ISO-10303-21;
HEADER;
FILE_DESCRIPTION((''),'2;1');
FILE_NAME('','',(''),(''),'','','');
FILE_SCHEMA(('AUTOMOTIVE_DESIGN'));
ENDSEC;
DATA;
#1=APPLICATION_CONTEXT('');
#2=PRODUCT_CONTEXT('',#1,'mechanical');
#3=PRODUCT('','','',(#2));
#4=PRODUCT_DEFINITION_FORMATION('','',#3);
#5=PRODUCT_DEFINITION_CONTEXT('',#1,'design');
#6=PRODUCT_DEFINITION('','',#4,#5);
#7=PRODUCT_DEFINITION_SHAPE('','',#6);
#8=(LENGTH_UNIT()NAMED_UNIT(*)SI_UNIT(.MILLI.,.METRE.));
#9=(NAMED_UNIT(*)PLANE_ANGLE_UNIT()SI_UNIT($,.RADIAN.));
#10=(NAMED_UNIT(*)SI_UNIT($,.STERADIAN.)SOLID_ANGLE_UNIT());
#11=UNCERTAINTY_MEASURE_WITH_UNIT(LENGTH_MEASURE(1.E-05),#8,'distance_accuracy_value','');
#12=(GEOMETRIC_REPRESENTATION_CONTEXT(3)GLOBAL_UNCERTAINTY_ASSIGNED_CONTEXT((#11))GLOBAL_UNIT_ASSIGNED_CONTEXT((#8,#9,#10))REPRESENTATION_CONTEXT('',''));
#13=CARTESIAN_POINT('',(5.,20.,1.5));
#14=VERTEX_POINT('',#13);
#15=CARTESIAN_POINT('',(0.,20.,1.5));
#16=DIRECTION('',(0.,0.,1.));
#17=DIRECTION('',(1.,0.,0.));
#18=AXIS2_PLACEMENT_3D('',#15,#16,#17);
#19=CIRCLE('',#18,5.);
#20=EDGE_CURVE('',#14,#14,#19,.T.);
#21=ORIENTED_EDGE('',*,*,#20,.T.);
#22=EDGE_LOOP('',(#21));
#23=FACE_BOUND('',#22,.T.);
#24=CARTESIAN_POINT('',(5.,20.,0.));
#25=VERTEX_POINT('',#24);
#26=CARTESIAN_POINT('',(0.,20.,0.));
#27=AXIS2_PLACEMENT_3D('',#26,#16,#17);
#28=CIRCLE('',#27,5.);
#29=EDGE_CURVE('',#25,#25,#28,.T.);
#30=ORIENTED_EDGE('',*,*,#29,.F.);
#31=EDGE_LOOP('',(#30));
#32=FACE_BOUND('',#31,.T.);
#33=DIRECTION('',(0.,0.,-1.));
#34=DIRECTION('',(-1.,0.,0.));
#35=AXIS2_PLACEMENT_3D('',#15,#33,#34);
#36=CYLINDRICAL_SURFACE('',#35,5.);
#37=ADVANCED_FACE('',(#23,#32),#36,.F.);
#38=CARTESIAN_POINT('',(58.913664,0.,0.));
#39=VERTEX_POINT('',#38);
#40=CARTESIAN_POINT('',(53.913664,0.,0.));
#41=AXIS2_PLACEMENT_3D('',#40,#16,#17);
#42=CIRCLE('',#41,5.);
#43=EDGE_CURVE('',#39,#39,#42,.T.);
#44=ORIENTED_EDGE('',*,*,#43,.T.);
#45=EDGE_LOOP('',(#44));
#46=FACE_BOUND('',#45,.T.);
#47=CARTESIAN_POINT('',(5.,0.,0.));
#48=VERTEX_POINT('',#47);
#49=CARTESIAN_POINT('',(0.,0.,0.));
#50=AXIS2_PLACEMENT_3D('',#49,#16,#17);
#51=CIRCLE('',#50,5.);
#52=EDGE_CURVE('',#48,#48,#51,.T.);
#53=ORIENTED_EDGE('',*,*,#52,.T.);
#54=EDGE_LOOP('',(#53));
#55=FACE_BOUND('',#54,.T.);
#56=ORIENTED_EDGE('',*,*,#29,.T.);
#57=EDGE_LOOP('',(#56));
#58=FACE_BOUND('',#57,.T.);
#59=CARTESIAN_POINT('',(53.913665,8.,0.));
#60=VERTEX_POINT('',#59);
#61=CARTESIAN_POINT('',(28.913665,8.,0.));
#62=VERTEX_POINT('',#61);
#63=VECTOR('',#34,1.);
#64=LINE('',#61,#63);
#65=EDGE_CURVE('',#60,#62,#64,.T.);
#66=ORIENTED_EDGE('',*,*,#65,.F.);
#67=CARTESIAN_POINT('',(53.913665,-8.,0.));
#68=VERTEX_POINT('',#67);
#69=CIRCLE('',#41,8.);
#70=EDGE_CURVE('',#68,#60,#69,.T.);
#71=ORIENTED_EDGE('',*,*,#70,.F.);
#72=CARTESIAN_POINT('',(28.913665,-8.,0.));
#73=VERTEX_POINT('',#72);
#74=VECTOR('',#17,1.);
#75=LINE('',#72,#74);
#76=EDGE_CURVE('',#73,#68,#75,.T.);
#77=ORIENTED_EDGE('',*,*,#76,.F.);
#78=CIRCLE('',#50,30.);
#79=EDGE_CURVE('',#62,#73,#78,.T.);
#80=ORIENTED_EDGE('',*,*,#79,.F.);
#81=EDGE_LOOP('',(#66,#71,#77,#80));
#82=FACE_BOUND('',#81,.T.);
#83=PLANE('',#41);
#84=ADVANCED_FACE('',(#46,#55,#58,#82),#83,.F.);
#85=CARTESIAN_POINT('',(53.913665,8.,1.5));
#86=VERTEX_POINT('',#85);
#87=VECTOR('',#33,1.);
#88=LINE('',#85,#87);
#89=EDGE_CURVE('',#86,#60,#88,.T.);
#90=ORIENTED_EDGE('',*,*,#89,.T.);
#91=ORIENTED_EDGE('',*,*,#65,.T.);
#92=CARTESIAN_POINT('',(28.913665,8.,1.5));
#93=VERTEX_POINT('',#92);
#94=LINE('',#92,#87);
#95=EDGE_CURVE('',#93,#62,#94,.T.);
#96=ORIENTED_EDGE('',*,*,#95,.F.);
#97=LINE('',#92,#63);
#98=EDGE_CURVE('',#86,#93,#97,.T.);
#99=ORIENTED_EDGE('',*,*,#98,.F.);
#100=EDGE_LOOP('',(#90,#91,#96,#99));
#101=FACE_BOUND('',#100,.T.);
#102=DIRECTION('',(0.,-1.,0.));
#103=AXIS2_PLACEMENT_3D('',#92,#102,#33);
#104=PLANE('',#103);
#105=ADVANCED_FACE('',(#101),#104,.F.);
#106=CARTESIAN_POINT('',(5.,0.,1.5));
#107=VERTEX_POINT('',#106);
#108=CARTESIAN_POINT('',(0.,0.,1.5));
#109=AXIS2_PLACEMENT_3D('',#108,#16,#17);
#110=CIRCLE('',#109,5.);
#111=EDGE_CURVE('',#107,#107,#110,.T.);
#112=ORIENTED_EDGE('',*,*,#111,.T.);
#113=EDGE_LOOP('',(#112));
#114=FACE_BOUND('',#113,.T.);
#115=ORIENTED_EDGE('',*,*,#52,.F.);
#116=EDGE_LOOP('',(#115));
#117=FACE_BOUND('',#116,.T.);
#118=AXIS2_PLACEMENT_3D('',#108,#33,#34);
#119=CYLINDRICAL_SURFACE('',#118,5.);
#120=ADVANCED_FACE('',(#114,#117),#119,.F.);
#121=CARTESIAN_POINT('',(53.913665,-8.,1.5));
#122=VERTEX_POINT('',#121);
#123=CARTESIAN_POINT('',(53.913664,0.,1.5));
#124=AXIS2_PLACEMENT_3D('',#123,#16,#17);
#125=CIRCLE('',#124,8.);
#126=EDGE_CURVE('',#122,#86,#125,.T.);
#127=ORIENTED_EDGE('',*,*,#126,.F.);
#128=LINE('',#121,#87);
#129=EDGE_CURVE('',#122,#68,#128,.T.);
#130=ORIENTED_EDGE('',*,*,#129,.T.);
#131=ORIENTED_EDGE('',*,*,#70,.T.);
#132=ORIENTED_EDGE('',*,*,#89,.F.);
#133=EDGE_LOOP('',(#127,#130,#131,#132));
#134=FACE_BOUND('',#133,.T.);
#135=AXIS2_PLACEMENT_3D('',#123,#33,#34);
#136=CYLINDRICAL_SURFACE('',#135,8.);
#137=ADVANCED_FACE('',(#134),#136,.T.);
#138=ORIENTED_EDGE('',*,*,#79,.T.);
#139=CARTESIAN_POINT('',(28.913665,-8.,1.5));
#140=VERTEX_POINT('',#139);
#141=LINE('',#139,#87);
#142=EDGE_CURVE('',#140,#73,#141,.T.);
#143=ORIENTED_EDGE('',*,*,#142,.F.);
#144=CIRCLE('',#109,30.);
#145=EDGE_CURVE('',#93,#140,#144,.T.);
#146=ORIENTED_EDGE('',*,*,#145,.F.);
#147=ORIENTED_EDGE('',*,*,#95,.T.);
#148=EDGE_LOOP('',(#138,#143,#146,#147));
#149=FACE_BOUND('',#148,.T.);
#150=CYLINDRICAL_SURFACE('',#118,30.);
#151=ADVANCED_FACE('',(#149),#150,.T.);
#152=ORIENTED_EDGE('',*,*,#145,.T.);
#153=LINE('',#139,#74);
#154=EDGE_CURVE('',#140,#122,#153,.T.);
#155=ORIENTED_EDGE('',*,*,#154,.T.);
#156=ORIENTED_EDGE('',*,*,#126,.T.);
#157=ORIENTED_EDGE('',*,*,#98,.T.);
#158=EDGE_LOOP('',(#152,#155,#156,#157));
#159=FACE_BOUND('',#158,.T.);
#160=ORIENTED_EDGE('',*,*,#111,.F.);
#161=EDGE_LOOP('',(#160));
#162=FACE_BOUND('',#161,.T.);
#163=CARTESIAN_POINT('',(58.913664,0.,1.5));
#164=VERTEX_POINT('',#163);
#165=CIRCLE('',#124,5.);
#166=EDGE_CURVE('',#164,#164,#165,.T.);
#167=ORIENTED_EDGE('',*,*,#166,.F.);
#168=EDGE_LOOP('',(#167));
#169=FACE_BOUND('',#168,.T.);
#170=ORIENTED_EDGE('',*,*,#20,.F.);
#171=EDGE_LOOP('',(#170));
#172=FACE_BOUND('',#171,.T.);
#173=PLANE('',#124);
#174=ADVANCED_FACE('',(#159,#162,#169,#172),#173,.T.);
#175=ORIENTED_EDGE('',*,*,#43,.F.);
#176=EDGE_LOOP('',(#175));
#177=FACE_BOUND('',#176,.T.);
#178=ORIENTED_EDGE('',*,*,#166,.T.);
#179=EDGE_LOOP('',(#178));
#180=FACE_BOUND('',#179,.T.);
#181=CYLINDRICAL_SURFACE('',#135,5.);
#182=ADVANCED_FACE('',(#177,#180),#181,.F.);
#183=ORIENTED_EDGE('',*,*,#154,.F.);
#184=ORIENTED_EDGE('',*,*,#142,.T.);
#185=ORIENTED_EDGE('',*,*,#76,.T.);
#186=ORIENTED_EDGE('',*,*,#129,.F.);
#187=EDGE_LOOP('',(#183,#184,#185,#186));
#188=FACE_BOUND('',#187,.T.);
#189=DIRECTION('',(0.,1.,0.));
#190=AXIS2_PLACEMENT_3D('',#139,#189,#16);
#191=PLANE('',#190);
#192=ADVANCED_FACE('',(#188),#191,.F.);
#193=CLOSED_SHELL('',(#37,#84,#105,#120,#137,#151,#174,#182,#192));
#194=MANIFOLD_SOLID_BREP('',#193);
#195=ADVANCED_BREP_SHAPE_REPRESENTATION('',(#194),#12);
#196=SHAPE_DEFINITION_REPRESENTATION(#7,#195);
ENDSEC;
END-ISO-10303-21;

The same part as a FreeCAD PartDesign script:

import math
import FreeCAD as App
import Part
import Sketcher
from FreeCAD import Vector

doc = App.newDocument("Part")
body = doc.addObject("PartDesign::Body", "Body")

sketch1 = body.newObject("Sketcher::SketchObject", "Sketch")
sketch1.AttachmentSupport = (doc.getObject("XY_Plane"), [""])
sketch1.MapMode = "FlatFace"
sketch1.addGeometry(Part.LineSegment(Vector(53.913665, 8, 0), Vector(28.913665, 8, 0)), False)
sketch1.addGeometry(Part.ArcOfCircle(Part.Circle(Vector(0, 0, 0), Vector(0, 0, 1), 30), math.radians(15.46601), math.radians(344.53399)), False)
sketch1.addGeometry(Part.LineSegment(Vector(28.913665, -8, 0), Vector(53.913665, -8, 0)), False)
sketch1.addGeometry(Part.ArcOfCircle(Part.Circle(Vector(53.913664, 0, 0), Vector(0, 0, 1), 8), math.radians(-89.999999), math.radians(89.999999)), False)
sketch1.addGeometry(Part.Circle(Vector(53.913664, 0, 0), Vector(0, 0, 1), 5), False)
sketch1.addGeometry(Part.Circle(Vector(0, 0, 0), Vector(0, 0, 1), 5), False)
sketch1.addGeometry(Part.Circle(Vector(0, 20, 0), Vector(0, 0, 1), 5), False)
sketch1.addConstraint(Sketcher.Constraint("Coincident", 0, 2, 1, 1))
sketch1.addConstraint(Sketcher.Constraint("Coincident", 1, 2, 2, 1))
sketch1.addConstraint(Sketcher.Constraint("Tangent", 2, 2, 3, 1))
sketch1.addConstraint(Sketcher.Constraint("Tangent", 3, 2, 0, 1))
sketch1.addConstraint(Sketcher.Constraint("Horizontal", 0))
sketch1.addConstraint(Sketcher.Constraint("Horizontal", 2))
sketch1.addConstraint(Sketcher.Constraint("Coincident", 1, 3, -1, 1))
sketch1.addConstraint(Sketcher.Constraint("Coincident", 5, 3, -1, 1))
sketch1.addConstraint(Sketcher.Constraint("Coincident", 4, 3, 3, 3))
sketch1.addConstraint(Sketcher.Constraint("Equal", 4, 5))
sketch1.addConstraint(Sketcher.Constraint("Equal", 5, 6))
sketch1.addConstraint(Sketcher.Constraint("PointOnObject", 3, 3, -1))
sketch1.addConstraint(Sketcher.Constraint("PointOnObject", 6, 3, -2))
sketch1.addConstraint(Sketcher.Constraint("Diameter", 4, 10.0))
sketch1.addConstraint(Sketcher.Constraint("Radius", 1, 30.0))
sketch1.addConstraint(Sketcher.Constraint("Radius", 3, 8.0))
sketch1.addConstraint(Sketcher.Constraint("DistanceX", 0, 2, 0, 1, 25.0))
sketch1.addConstraint(Sketcher.Constraint("DistanceY", -1, 1, 6, 3, 20.0))
pad1 = body.newObject("PartDesign::Pad", "Pad")
pad1.Profile = sketch1
pad1.Length = 1.5

doc.recompute()
